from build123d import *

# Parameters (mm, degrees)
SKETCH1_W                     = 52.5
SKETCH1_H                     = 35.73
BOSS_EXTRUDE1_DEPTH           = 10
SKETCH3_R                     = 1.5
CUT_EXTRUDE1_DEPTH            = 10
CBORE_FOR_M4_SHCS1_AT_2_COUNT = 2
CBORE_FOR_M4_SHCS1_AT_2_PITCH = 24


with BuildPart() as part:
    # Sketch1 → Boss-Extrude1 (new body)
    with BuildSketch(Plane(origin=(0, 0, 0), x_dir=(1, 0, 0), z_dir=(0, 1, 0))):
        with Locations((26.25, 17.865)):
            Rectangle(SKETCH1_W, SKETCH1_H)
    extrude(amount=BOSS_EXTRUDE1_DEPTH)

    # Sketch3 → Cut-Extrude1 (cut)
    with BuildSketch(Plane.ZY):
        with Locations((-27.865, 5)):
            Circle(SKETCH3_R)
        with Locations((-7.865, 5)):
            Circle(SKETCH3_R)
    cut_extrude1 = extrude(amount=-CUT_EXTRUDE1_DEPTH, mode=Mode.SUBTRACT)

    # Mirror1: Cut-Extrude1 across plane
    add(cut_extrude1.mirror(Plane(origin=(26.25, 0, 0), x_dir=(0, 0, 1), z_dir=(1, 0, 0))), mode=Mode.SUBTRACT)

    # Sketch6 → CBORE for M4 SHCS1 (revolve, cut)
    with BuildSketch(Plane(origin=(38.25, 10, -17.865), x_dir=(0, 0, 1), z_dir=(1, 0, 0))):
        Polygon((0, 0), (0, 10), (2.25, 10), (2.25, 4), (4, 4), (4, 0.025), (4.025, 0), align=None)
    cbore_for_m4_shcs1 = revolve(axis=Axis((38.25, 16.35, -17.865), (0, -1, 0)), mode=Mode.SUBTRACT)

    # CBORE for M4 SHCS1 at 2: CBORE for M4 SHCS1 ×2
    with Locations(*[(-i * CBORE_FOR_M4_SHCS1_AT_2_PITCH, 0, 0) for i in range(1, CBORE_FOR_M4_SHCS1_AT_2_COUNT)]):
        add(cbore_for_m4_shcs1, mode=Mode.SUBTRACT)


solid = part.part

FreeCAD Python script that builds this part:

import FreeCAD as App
import Part
import Sketcher

V = App.Vector
Q = App.Units.Quantity

doc = App.newDocument("Part")
body = doc.addObject("PartDesign::Body", "Body")

# Sketch on XZ plane
sketch1 = body.newObject("Sketcher::SketchObject", "Sketch")
sketch1.AttachmentSupport = (doc.getObject("XZ_Plane"), [""])
sketch1.MapMode = "FlatFace"
sketch1.addGeometry([
    Part.LineSegment(V(0, -36, 0), V(0, 0, 0)),
    Part.LineSegment(V(0, 0, 0), V(52, 0, 0)),
    Part.LineSegment(V(52, 0, 0), V(52, -36, 0)),
    Part.LineSegment(V(52, -36, 0), V(0, -36, 0)),
], False)
sketch1.addConstraint([
    Sketcher.Constraint("Coincident", 0, 2, 1, 1),
    Sketcher.Constraint("Coincident", 1, 2, 2, 1),
    Sketcher.Constraint("Coincident", 2, 2, 3, 1),
    Sketcher.Constraint("Coincident", 3, 2, 0, 1),
    Sketcher.Constraint("Vertical", 0),
    Sketcher.Constraint("Horizontal", 1),
    Sketcher.Constraint("Vertical", 2),
    Sketcher.Constraint("Horizontal", 3),
    Sketcher.Constraint("Coincident", 0, 2, -1, 1),
    Sketcher.Constraint("DistanceX", 1, 1, 1, 2, 52.5),
    Sketcher.Constraint("DistanceY", 0, 1, 0, 2, 35.73),
])
pad1 = body.newObject("PartDesign::Pad", "Pad")
pad1.Profile = sketch1
pad1.Length = 10
pad1.Reversed = True

# Sketch on YZ plane
sketch2 = body.newObject("Sketcher::SketchObject", "Sketch001")
sketch2.AttachmentSupport = (doc.getObject("YZ_Plane"), [""])
sketch2.MapMode = "FlatFace"
sketch2.addGeometry([
    Part.Circle(V(5, -27.9, 0), V(0, 0, 1), 1.5),
    Part.Circle(V(5, -7.9, 0), V(0, 0, 1), 1.5),
], False)
sketch2.addConstraint([
    Sketcher.Constraint("Equal", 0, 1),
    Sketcher.Constraint("Vertical", 0, 3, 1, 3),
    Sketcher.Constraint("Diameter", 0, 3.0),
    Sketcher.Constraint("DistanceX", -1, 1, 0, 3, 5.0),
    Sketcher.Constraint("DistanceY", 0, 3, 1, 3, 20.0),
    Sketcher.Constraint("DistanceY", 0, 3, -1, 1, 27.865),
])
pocket1 = body.newObject("PartDesign::Pocket", "Pocket")
pocket1.Profile = sketch2
pocket1.Length = 10
pocket1.Reversed = True
doc.recompute()

datumplane = body.newObject("PartDesign::Plane", "DatumPlane")
datumplane.AttachmentSupport = (doc.getObject("YZ_Plane"), [""])
datumplane.MapMode = "FlatFace"
datumplane.AttachmentOffset = App.Placement(V(0, 0, 26.25), App.Rotation())
mirrored = body.newObject("PartDesign::Mirrored", "Mirrored")
mirrored.Originals = [pocket1]
mirrored.MirrorPlane = (datumplane, [""])
body.Tip = mirrored

# Sketch on YZ plane
sketch3 = body.newObject("Sketcher::SketchObject", "Sketch002")
sketch3.AttachmentSupport = (doc.getObject("YZ_Plane"), [""])
sketch3.MapMode = "FlatFace"
sketch3.AttachmentOffset = App.Placement(V(0, 0, 38.25), App.Rotation())
sketch3.addGeometry([
    Part.LineSegment(V(0, -17.865, 0), V(10, -17.865, 0)),  # 0
    Part.LineSegment(V(10, -17.865, 0), V(10, -13.84, 0)),  # 1
    Part.LineSegment(V(10, -13.84, 0), V(9.975, -13.865, 0)),  # 2
    Part.LineSegment(V(9.975, -13.865, 0), V(6, -13.865, 0)),  # 3
    Part.LineSegment(V(6, -13.865, 0), V(6, -15.615, 0)),  # 4
    Part.LineSegment(V(6, -15.615, 0), V(0, -15.615, 0)),  # 5
    Part.LineSegment(V(0, -15.615, 0), V(0, -17.865, 0)),  # 6
], False)
sketch3.addGeometry(Part.LineSegment(V(10, -17.865, 0), V(0, -17.865, 0)), True)  # axis
sketch3.addConstraint([
    Sketcher.Constraint("Coincident", 0, 2, 1, 1),
    Sketcher.Constraint("Coincident", 1, 2, 2, 1),
    Sketcher.Constraint("Coincident", 2, 2, 3, 1),
    Sketcher.Constraint("Coincident", 3, 2, 4, 1),
    Sketcher.Constraint("Coincident", 4, 2, 5, 1),
    Sketcher.Constraint("Coincident", 5, 2, 6, 1),
    Sketcher.Constraint("Coincident", 6, 2, 0, 1),
    Sketcher.Constraint("Horizontal", 0),
    Sketcher.Constraint("Vertical", 1),
    Sketcher.Constraint("Horizontal", 3),
    Sketcher.Constraint("Vertical", 4),
    Sketcher.Constraint("Horizontal", 5),
    Sketcher.Constraint("Vertical", 6),
    Sketcher.Constraint("Horizontal", 7),
    Sketcher.Constraint("Coincident", 7, 1, 0, 2),
    Sketcher.Constraint("PointOnObject", 5, 2, -2),
    Sketcher.Constraint("PointOnObject", 7, 2, -2),
    Sketcher.Constraint("DistanceX", 0, 1, 0, 2, 10.0),
    Sketcher.Constraint("DistanceX", 5, 2, 5, 1, 6.0),
    Sketcher.Constraint("Angle", 2, Q("-135 deg")),
    Sketcher.Constraint("DistanceY", 0, 2, 2, 2, 4.0),
    Sketcher.Constraint("DistanceY", 4, 2, 4, 1, 1.75),
    Sketcher.Constraint("DistanceX", 3, 2, 3, 1, 3.975),
    Sketcher.Constraint("DistanceY", 1, 2, -1, 1, 13.84),
])
groove = body.newObject("PartDesign::Groove", "Groove")
groove.Profile = sketch3
groove.ReferenceAxis = (sketch3, ["Axis0"])
groove.Angle = 360
doc.recompute()

linearpattern = body.newObject("PartDesign::LinearPattern", "LinearPattern")
linearpattern.Originals = [groove]
linearpattern.Direction = (doc.getObject("X_Axis"), [""])
linearpattern.Mode = "offset"
linearpattern.Offset = 24
linearpattern.Occurrences = 2
linearpattern.Reversed = True
body.Tip = linearpattern

doc.recompute()
